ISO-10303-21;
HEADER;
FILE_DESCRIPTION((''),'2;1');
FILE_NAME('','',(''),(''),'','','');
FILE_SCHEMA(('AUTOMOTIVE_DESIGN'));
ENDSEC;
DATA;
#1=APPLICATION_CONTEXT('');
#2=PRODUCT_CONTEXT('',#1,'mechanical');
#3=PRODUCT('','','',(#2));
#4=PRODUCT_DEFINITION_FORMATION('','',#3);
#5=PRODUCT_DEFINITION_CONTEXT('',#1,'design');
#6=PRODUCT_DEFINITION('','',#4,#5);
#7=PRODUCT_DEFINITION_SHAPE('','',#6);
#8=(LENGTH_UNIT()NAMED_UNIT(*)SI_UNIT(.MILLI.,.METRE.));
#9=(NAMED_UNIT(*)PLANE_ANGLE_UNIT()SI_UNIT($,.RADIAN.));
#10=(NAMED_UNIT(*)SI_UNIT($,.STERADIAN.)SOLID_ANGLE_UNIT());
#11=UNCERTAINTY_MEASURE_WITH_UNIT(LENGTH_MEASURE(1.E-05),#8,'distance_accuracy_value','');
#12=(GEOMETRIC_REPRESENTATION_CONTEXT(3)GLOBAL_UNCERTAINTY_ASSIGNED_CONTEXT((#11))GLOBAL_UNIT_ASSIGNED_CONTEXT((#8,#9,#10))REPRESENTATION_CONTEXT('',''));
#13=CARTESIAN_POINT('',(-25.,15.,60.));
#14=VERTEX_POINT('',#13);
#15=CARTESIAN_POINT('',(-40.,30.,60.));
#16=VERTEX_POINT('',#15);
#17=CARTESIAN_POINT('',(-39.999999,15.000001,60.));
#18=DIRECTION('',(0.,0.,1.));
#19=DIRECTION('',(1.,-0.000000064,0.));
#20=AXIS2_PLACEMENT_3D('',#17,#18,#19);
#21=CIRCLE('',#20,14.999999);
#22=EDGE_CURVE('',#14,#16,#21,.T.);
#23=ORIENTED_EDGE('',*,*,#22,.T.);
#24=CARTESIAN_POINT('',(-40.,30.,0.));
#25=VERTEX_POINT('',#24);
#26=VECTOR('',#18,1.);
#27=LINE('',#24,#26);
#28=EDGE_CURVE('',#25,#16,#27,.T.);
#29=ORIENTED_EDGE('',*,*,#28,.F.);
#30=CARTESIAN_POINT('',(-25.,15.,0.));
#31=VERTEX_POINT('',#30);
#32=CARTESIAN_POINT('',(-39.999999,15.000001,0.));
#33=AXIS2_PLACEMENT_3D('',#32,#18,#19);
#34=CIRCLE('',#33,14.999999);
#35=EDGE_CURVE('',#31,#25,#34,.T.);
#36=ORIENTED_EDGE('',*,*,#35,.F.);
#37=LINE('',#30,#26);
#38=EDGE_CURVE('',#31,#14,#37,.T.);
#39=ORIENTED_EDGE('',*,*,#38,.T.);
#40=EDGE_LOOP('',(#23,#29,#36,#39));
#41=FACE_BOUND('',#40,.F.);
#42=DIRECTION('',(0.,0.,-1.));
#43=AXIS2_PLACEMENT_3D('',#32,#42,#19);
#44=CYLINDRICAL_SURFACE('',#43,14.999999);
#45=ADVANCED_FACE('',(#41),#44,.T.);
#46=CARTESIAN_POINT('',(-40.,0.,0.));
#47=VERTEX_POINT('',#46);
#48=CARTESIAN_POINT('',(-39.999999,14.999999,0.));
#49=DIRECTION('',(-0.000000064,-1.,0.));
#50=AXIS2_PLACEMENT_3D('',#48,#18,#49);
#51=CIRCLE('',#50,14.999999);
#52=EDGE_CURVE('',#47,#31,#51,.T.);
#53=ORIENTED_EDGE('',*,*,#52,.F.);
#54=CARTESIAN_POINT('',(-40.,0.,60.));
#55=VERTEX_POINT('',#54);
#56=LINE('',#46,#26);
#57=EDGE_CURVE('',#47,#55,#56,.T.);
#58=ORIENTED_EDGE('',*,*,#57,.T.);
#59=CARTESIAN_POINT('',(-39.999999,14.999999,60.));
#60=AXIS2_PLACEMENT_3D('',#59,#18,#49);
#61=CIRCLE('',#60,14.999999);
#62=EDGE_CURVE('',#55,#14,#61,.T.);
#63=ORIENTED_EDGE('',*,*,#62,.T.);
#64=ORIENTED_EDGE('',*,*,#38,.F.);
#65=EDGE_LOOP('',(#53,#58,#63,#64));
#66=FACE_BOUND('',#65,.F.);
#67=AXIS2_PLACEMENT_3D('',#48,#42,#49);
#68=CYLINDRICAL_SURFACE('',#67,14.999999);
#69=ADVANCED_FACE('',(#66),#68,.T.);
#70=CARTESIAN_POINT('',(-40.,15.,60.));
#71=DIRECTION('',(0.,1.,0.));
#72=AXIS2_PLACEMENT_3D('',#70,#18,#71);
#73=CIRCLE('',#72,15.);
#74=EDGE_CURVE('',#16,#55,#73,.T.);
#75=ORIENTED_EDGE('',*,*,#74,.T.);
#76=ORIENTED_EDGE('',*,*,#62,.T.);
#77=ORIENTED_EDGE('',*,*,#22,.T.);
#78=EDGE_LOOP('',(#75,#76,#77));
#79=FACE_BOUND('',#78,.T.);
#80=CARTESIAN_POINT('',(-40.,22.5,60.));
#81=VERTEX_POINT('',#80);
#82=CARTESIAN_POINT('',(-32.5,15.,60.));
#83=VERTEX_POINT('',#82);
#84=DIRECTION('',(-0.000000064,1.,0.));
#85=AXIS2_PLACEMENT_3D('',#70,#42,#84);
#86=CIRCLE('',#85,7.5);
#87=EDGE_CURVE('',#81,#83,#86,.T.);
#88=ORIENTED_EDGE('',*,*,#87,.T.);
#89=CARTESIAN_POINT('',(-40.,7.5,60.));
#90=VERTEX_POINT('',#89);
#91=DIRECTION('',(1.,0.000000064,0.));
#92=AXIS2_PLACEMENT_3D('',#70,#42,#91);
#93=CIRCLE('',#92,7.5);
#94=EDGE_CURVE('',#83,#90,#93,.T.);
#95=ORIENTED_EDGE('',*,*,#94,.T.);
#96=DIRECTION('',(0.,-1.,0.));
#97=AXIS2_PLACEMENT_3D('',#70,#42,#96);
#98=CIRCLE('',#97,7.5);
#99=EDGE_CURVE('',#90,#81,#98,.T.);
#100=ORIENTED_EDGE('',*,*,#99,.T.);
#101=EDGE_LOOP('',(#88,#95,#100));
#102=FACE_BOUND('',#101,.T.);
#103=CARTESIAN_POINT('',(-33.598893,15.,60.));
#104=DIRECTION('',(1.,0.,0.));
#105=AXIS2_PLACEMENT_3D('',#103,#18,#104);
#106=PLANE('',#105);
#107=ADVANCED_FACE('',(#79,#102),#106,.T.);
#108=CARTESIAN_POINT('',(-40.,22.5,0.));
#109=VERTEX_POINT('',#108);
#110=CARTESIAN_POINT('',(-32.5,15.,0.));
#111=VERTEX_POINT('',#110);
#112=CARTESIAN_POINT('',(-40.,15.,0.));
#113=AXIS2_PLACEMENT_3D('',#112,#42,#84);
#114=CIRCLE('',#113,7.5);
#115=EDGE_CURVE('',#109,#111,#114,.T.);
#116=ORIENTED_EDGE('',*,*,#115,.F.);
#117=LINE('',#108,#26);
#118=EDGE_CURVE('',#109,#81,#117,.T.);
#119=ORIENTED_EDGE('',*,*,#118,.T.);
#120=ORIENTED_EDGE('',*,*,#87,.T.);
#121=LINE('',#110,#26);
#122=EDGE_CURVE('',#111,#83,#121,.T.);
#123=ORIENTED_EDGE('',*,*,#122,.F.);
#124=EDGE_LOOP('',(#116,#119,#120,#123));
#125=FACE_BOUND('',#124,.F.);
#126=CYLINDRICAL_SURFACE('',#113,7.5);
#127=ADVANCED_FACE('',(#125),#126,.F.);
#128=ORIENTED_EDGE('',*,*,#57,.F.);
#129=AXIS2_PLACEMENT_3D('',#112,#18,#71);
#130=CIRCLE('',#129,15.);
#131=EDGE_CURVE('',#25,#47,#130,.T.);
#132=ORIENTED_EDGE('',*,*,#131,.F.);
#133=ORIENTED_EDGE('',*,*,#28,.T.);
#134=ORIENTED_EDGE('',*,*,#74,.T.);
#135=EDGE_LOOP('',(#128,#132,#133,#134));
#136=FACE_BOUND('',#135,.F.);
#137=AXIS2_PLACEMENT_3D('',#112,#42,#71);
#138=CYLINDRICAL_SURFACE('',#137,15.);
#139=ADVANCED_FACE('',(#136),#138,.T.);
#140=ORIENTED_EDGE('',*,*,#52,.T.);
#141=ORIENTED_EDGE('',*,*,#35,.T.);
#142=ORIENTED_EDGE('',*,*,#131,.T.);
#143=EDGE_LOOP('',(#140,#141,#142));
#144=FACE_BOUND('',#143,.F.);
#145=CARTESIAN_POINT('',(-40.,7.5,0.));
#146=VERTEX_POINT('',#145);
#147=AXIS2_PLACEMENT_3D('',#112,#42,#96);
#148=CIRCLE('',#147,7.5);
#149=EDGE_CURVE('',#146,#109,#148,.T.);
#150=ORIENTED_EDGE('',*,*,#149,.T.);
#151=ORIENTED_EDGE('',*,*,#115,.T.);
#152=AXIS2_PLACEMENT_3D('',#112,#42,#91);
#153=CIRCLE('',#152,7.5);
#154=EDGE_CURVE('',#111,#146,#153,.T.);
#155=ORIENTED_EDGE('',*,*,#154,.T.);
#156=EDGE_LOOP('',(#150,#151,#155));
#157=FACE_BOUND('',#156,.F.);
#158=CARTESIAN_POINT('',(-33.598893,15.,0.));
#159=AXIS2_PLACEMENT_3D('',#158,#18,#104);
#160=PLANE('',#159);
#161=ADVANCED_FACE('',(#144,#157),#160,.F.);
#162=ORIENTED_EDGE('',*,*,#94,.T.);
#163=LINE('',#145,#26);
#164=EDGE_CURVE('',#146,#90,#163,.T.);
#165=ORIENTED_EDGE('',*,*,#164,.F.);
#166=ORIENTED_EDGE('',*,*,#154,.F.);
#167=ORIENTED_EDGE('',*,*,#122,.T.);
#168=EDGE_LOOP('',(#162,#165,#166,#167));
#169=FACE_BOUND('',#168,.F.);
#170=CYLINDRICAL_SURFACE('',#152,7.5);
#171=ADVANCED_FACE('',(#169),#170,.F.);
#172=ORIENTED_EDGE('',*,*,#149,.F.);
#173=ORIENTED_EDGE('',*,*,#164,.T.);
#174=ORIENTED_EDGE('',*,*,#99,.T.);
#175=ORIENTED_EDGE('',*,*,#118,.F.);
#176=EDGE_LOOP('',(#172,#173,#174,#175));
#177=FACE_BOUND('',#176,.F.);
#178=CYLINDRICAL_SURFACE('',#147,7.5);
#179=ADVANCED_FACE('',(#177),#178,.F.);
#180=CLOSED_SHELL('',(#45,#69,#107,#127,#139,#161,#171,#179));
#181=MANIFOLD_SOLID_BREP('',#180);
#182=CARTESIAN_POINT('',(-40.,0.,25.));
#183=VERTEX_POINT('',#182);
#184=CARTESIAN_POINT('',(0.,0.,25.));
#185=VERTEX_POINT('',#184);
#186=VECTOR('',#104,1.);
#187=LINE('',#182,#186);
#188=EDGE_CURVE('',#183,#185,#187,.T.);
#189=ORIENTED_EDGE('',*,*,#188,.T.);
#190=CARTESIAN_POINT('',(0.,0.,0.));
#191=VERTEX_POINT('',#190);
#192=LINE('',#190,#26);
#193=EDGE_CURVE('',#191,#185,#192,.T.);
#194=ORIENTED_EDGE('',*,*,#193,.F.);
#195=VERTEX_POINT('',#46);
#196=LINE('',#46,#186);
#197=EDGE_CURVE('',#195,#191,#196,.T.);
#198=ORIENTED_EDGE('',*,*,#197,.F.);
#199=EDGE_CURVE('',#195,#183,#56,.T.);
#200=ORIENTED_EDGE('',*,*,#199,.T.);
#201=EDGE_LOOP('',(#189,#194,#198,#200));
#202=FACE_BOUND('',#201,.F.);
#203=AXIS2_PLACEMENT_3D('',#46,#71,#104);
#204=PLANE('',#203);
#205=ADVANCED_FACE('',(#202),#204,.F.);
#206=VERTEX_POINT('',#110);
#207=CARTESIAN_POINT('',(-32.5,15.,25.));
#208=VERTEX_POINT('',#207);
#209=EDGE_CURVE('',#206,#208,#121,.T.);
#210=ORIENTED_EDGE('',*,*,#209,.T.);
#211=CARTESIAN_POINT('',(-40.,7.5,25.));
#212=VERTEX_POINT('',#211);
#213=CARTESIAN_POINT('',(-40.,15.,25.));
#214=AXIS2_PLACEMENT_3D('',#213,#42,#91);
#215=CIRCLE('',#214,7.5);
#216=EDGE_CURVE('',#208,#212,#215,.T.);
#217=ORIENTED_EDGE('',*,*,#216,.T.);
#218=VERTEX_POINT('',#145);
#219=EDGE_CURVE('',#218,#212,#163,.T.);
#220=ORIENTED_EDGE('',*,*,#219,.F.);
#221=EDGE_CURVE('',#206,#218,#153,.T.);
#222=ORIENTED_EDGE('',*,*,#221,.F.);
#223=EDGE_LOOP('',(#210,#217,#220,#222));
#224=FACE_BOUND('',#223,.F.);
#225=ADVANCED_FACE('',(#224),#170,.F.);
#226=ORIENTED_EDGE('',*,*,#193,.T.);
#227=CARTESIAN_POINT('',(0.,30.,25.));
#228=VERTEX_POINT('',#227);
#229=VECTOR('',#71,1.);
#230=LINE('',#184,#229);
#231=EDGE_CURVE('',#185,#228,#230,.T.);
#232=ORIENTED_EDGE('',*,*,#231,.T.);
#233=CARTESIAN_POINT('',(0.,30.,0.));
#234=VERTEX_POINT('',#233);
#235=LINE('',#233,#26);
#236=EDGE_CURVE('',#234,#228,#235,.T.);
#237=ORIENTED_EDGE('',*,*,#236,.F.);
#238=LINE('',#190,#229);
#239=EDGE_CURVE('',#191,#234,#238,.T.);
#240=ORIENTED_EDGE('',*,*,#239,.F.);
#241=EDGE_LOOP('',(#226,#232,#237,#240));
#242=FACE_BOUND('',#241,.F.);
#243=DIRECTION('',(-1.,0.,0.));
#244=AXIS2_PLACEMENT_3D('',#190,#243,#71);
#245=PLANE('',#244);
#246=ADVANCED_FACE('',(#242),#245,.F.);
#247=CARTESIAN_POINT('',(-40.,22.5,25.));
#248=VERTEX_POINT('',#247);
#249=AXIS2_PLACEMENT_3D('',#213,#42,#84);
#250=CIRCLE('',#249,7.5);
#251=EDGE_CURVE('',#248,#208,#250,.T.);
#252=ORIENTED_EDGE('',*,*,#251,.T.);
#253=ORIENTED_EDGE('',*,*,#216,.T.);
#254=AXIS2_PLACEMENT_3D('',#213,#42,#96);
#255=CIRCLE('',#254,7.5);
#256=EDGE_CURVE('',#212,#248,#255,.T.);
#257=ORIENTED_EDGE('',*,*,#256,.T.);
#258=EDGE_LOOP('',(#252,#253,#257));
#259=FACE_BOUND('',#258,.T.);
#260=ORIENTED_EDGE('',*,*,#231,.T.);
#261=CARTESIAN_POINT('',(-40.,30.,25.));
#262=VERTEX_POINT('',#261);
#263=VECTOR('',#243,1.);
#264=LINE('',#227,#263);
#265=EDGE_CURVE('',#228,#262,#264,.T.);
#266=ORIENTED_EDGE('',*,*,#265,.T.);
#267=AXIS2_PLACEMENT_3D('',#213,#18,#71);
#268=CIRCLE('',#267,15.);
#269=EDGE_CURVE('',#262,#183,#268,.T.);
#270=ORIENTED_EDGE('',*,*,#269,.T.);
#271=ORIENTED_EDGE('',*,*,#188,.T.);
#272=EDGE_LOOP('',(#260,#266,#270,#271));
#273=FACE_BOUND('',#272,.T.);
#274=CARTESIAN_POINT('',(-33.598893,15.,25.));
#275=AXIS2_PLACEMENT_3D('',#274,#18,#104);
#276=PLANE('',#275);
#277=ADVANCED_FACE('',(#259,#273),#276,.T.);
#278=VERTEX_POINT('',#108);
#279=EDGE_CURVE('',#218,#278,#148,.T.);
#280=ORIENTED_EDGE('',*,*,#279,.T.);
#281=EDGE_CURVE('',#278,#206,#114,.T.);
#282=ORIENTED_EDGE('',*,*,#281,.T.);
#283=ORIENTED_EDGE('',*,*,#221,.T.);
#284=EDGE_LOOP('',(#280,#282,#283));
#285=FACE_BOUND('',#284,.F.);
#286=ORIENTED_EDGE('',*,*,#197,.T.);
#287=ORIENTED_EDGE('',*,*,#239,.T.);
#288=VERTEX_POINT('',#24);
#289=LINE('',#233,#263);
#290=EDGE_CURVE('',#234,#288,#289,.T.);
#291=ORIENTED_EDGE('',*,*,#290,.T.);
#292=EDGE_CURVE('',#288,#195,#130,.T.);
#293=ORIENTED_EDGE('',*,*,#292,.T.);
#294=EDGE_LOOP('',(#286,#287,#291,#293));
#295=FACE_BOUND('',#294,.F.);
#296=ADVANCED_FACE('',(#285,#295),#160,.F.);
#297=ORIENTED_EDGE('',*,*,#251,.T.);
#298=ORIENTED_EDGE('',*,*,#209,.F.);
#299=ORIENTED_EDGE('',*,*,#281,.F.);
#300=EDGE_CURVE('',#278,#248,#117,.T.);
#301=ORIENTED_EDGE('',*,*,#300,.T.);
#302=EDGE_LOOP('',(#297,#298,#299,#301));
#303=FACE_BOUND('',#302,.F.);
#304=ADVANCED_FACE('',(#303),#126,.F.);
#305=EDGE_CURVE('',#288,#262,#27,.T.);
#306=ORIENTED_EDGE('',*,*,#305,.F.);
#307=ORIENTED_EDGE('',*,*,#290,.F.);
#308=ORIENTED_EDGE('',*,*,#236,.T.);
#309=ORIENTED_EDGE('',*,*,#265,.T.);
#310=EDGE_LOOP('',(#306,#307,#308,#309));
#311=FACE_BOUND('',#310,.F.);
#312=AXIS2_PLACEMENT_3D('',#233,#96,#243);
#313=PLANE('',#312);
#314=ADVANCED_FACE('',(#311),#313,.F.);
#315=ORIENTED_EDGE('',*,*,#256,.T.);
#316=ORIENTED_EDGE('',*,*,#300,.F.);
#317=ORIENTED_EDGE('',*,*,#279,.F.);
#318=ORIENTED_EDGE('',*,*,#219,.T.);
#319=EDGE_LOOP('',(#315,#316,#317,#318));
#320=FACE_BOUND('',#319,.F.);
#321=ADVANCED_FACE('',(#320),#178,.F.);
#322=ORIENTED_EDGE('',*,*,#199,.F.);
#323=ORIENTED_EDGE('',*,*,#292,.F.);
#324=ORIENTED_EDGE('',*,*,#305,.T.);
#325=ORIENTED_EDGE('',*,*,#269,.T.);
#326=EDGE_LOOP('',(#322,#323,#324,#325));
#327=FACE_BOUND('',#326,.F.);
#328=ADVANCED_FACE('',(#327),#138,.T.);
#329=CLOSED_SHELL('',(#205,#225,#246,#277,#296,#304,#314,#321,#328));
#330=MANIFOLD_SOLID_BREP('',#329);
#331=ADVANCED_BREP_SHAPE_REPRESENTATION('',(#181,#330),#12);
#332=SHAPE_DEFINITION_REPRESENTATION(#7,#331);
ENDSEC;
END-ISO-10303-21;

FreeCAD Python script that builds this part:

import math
import FreeCAD as App
import Part
import Sketcher

V = App.Vector
Q = App.Units.Quantity

doc = App.newDocument("Part")
body = doc.addObject("PartDesign::Body", "Body")

# Sketch on XY plane
sketch1 = body.newObject("Sketcher::SketchObject", "Sketch")
sketch1.AttachmentSupport = (doc.getObject("XY_Plane"), [""])
sketch1.MapMode = "FlatFace"
sketch1.addGeometry(Part.ArcOfCircle(Part.Circle(V(-39.999999, 14.999999, 0), V(0, 0, 1), 14.999999), math.radians(-90.000004), math.radians(0.000004)), False)
sketch1.addGeometry(Part.ArcOfCircle(Part.Circle(V(-39.999999, 15.000001, 0), V(0, 0, 1), 14.999999), math.radians(-0.000004), math.radians(90.000004)), False)
sketch1.addGeometry(Part.ArcOfCircle(Part.Circle(V(-40, 15, 0), V(0, 0, 1), 15), math.radians(90), math.radians(270)), False)
sketch1.addGeometry(Part.ArcOfCircle(Part.Circle(V(-40, 15, 0), V(0, 0, 1), 7.5), math.radians(-0.000004), math.radians(90.000004)), False)
sketch1.addGeometry(Part.ArcOfCircle(Part.Circle(V(-40, 15, 0), V(0, 0, 1), 7.5), math.radians(-90.000004), math.radians(0.000004)), False)
sketch1.addGeometry(Part.ArcOfCircle(Part.Circle(V(-40, 15, 0), V(0, 0, 1), 7.5), math.radians(90), math.radians(270)), False)
sketch1.addConstraint(Sketcher.Constraint("Tangent", 0, 2, 1, 1))
sketch1.addConstraint(Sketcher.Constraint("Tangent", 1, 2, 2, 1))
sketch1.addConstraint(Sketcher.Constraint("Tangent", 2, 2, 0, 1))
sketch1.addConstraint(Sketcher.Constraint("Tangent", 3, 1, 4, 2))
sketch1.addConstraint(Sketcher.Constraint("Tangent", 4, 1, 5, 2))
sketch1.addConstraint(Sketcher.Constraint("Tangent", 5, 1, 3, 2))
sketch1.addConstraint(Sketcher.Constraint("Coincident", 3, 3, 0, 3))
sketch1.addConstraint(Sketcher.Constraint("PointOnObject", 2, 2, -1))
sketch1.addConstraint(Sketcher.Constraint("Horizontal", 5, 3, 0, 2))
sketch1.addConstraint(Sketcher.Constraint("Horizontal", 0, 2, 3, 1))
sketch1.addConstraint(Sketcher.Constraint("Vertical", 5, 3, 1, 2))
sketch1.addConstraint(Sketcher.Constraint("Vertical", 1, 2, 2, 2))
sketch1.addConstraint(Sketcher.Constraint("Vertical", 2, 2, 4, 1))
sketch1.addConstraint(Sketcher.Constraint("Vertical", 4, 1, 5, 1))
sketch1.addConstraint(Sketcher.Constraint("Radius", 0, Q("14.999999 mm")))
sketch1.addConstraint(Sketcher.Constraint("Radius", 3, Q("7.5 mm")))
sketch1.addConstraint(Sketcher.Constraint("DistanceX", 0, 3, -1, 1, Q("39.999999 mm")))
pad1 = body.newObject("PartDesign::Pad", "Pad")
pad1.Profile = sketch1
pad1.Length = 60
body2 = doc.addObject("PartDesign::Body", "Body001")

# Sketch on XY plane
sketch2 = body2.newObject("Sketcher::SketchObject", "Sketch001")
sketch2.AttachmentSupport = (doc.getObject("XY_Plane001"), [""])
sketch2.MapMode = "FlatFace"
sketch2.addGeometry(Part.ArcOfCircle(Part.Circle(V(-40, 15, 0), V(0, 0, 1), 15), math.radians(90), math.radians(270)), False)
sketch2.addGeometry(Part.LineSegment(V(-40, 0, 0), V(0, 0, 0)), False)
sketch2.addGeometry(Part.LineSegment(V(0, 0, 0), V(0, 30, 0)), False)
sketch2.addGeometry(Part.LineSegment(V(0, 30, 0), V(-40, 30, 0)), False)
sketch2.addGeometry(Part.ArcOfCircle(Part.Circle(V(-40, 15, 0), V(0, 0, 1), 7.5), math.radians(-0.000004), math.radians(90.000004)), False)
sketch2.addGeometry(Part.ArcOfCircle(Part.Circle(V(-40, 15, 0), V(0, 0, 1), 7.5), math.radians(-90.000004), math.radians(0.000004)), False)
sketch2.addGeometry(Part.ArcOfCircle(Part.Circle(V(-40, 15, 0), V(0, 0, 1), 7.5), math.radians(90), math.radians(270)), False)
sketch2.addConstraint(Sketcher.Constraint("Tangent", 0, 2, 1, 1))
sketch2.addConstraint(Sketcher.Constraint("Coincident", 1, 2, 2, 1))
sketch2.addConstraint(Sketcher.Constraint("Coincident", 2, 2, 3, 1))
sketch2.addConstraint(Sketcher.Constraint("Tangent", 3, 2, 0, 1))
sketch2.addConstraint(Sketcher.Constraint("Tangent", 4, 1, 5, 2))
sketch2.addConstraint(Sketcher.Constraint("Tangent", 5, 1, 6, 2))
sketch2.addConstraint(Sketcher.Constraint("Tangent", 6, 1, 4, 2))
sketch2.addConstraint(Sketcher.Constraint("Horizontal", 1))
sketch2.addConstraint(Sketcher.Constraint("Vertical", 2))
sketch2.addConstraint(Sketcher.Constraint("Horizontal", 3))
sketch2.addConstraint(Sketcher.Constraint("Coincident", 1, 2, -1, 1))
sketch2.addConstraint(Sketcher.Constraint("Coincident", 4, 3, 0, 3))
sketch2.addConstraint(Sketcher.Constraint("Horizontal", 6, 3, 4, 1))
sketch2.addConstraint(Sketcher.Constraint("Vertical", 3, 2, 5, 1))
sketch2.addConstraint(Sketcher.Constraint("Vertical", 5, 1, 6, 1))
sketch2.addConstraint(Sketcher.Constraint("Radius", 0, Q("15 mm")))
sketch2.addConstraint(Sketcher.Constraint("Radius", 4, Q("7.5 mm")))
sketch2.addConstraint(Sketcher.Constraint("DistanceX", 1, 1, 1, 2, Q("40 mm")))
pad2 = body2.newObject("PartDesign::Pad", "Pad001")
pad2.Profile = sketch2
pad2.Length = 25

doc.recompute()
